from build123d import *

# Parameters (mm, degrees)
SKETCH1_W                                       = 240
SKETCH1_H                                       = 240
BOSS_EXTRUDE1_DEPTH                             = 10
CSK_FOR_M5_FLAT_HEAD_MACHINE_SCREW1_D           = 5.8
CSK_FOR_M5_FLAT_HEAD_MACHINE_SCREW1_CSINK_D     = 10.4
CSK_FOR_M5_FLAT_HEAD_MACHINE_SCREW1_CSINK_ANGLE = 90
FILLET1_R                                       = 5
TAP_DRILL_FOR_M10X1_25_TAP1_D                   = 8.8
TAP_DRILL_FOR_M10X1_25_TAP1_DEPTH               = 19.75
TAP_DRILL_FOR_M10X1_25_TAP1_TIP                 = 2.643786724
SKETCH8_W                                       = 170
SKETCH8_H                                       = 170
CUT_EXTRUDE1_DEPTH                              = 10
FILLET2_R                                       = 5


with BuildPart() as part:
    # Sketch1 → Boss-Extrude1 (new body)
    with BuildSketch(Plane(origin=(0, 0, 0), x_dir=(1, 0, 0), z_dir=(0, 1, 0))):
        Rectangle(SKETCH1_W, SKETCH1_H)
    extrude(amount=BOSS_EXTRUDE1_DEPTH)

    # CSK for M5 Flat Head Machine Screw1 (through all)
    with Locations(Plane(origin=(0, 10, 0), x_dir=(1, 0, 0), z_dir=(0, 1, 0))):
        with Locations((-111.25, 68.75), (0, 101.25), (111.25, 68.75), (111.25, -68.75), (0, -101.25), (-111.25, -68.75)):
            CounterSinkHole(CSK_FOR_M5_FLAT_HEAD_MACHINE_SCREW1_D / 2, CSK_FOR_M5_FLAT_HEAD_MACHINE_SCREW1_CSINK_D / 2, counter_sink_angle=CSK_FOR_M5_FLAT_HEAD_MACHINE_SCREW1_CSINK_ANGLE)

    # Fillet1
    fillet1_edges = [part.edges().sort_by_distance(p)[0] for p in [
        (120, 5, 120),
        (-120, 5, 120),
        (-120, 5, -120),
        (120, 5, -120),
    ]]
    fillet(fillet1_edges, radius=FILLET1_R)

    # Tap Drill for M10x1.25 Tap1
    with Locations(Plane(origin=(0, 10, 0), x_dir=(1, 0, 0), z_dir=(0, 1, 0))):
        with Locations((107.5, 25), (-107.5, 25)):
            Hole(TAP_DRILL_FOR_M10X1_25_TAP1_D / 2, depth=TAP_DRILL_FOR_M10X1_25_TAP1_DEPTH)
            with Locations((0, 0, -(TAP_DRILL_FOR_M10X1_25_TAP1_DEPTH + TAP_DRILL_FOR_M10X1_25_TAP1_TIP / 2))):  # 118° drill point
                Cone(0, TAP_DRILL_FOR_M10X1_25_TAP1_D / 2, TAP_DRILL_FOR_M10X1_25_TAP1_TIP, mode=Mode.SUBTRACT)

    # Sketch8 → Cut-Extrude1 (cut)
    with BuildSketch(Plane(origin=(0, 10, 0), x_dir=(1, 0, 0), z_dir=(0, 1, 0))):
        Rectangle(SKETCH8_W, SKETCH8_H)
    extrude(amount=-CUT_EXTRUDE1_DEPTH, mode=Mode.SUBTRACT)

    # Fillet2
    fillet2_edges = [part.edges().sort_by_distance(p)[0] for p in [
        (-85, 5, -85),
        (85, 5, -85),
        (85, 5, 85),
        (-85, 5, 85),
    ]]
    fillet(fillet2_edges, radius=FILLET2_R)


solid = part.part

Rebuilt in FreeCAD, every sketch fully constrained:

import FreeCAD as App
import Part
import Sketcher
from FreeCAD import Vector
Q = App.Units.Quantity


def edges_at(feature, points):
    """Names of the edges that pass closest to the given points."""
    edges = feature.Shape.Edges
    near = lambda p: min(range(len(edges)), key=lambda i: edges[i].distToShape(Part.Vertex(*p))[0])
    return sorted({f"Edge{near(p) + 1}" for p in points})

doc = App.newDocument("Part")
body = doc.addObject("PartDesign::Body", "Body")

# Sketch on XZ plane
sketch1 = doc.addObject("Sketcher::SketchObject", "Sketch")
body.addObject(sketch1)
sketch1.AttachmentSupport = (doc.XZ_Plane, [""])
sketch1.MapMode = "FlatFace"
sketch1.addGeometry([
    Part.LineSegment(Vector(-120, -120, 0), Vector(-120, 120, 0)),
    Part.LineSegment(Vector(-120, 120, 0), Vector(120, 120, 0)),
    Part.LineSegment(Vector(120, 120, 0), Vector(120, -120, 0)),
    Part.LineSegment(Vector(120, -120, 0), Vector(-120, -120, 0)),
], False)
sketch1.addConstraint([
    Sketcher.Constraint("Coincident", 0, 2, 1, 1),
    Sketcher.Constraint("Coincident", 1, 2, 2, 1),
    Sketcher.Constraint("Coincident", 2, 2, 3, 1),
    Sketcher.Constraint("Coincident", 3, 2, 0, 1),
    Sketcher.Constraint("Vertical", 0),
    Sketcher.Constraint("Horizontal", 1),
    Sketcher.Constraint("Vertical", 2),
    Sketcher.Constraint("Horizontal", 3),
    Sketcher.Constraint("Symmetric", 0, 2, 2, 2, -1, 1),
    Sketcher.Constraint("Equal", 3, 0),
    Sketcher.Constraint("DistanceX", 1, 1, 1, 2, Q("240 mm")),
])
pad1 = doc.addObject("PartDesign::Pad", "Pad")
body.addObject(pad1)
pad1.Profile = sketch1
pad1.Length = 10
pad1.Reversed = True

# Sketch on XZ plane
sketch2 = doc.addObject("Sketcher::SketchObject", "Sketch001")
body.addObject(sketch2)
sketch2.AttachmentSupport = (doc.XZ_Plane, [""])
sketch2.MapMode = "FlatFace"
sketch2.AttachmentOffset = App.Placement(Vector(0, 0, -10), App.Rotation())
sketch2.addGeometry([
    Part.Circle(Vector(-111.2, -68.8, 0), Vector(0, 0, 1), 2.9),  # 0
    Part.Circle(Vector(0, -101.2, 0), Vector(0, 0, 1), 2.9),  # 1
    Part.Circle(Vector(111.2, -68.8, 0), Vector(0, 0, 1), 2.9),  # 2
    Part.Circle(Vector(111.2, 68.8, 0), Vector(0, 0, 1), 2.9),  # 3
    Part.Circle(Vector(0, 101.2, 0), Vector(0, 0, 1), 2.9),  # 4
    Part.Circle(Vector(-111.2, 68.8, 0), Vector(0, 0, 1), 2.9),  # 5
], False)
sketch2.addConstraint([
    Sketcher.Constraint("Equal", 0, 1),
    Sketcher.Constraint("Equal", 1, 2),
    Sketcher.Constraint("Equal", 2, 3),
    Sketcher.Constraint("Equal", 3, 4),
    Sketcher.Constraint("Equal", 4, 5),
    Sketcher.Constraint("Symmetric", 0, 3, 3, 3, -1, 1),
    Sketcher.Constraint("Symmetric", 1, 3, 4, 3, -1, 1),
    Sketcher.Constraint("Symmetric", 2, 3, 5, 3, -1, 1),
    Sketcher.Constraint("Symmetric", 0, 3, 2, 3, -2),
    Sketcher.Constraint("PointOnObject", 1, 3, -2),
    Sketcher.Constraint("Diameter", 0, Q("5.8 mm")),
    Sketcher.Constraint("DistanceY", 1, 3, 3, 3, Q("170 mm")),
    Sketcher.Constraint("DistanceY", 1, 3, 0, 3, Q("32.5 mm")),
    Sketcher.Constraint("DistanceX", 0, 3, 2, 3, Q("222.5 mm")),
])
doc.recompute()
hole = doc.addObject("PartDesign::Hole", "Hole")
body.addObject(hole)
hole.Profile = sketch2
hole.ThreadType = "None"
hole.Diameter = 5.8
hole.DepthType = "ThroughAll"
hole.HoleCutType = "Countersink"
hole.HoleCutDiameter = 10.4
hole.HoleCutCountersinkAngle = 90
hole.Reversed = True
doc.recompute()

fillet = doc.addObject("PartDesign::Fillet", "Fillet")
body.addObject(fillet)
fillet.Base = (hole, edges_at(hole, [
    (120, 5, 120),
    (-120, 5, 120),
    (-120, 5, -120),
    (120, 5, -120),
]))
fillet.Radius = 5

# Sketch on XZ plane
sketch3 = doc.addObject("Sketcher::SketchObject", "Sketch002")
body.addObject(sketch3)
sketch3.AttachmentSupport = (doc.XZ_Plane, [""])
sketch3.MapMode = "FlatFace"
sketch3.AttachmentOffset = App.Placement(Vector(0, 0, -10), App.Rotation())
sketch3.addGeometry([
    Part.Circle(Vector(107.5, -25, 0), Vector(0, 0, 1), 4.4),
    Part.Circle(Vector(-107.5, -25, 0), Vector(0, 0, 1), 4.4),
], False)
sketch3.addConstraint([
    Sketcher.Constraint("Equal", 0, 1),
    Sketcher.Constraint("Symmetric", 0, 3, 1, 3, -2),
    Sketcher.Constraint("Diameter", 0, Q("8.8 mm")),
    Sketcher.Constraint("DistanceY", 0, 3, -1, 1, Q("25 mm")),
    Sketcher.Constraint("DistanceX", 1, 3, 0, 3, Q("215 mm")),
])
doc.recompute()
hole2 = doc.addObject("PartDesign::Hole", "Hole001")
body.addObject(hole2)
hole2.Profile = sketch3
hole2.ThreadType = "None"
hole2.Diameter = 8.8
hole2.DepthType = "Dimension"
hole2.Depth = 19.75
hole2.DrillPoint = "Angled"
hole2.DrillPointAngle = 118
hole2.Reversed = True

# Sketch on XZ plane
sketch4 = doc.addObject("Sketcher::SketchObject", "Sketch003")
body.addObject(sketch4)
sketch4.AttachmentSupport = (doc.XZ_Plane, [""])
sketch4.MapMode = "FlatFace"
sketch4.AttachmentOffset = App.Placement(Vector(0, 0, -10), App.Rotation())
sketch4.addGeometry([
    Part.LineSegment(Vector(-85, -85, 0), Vector(-85, 85, 0)),
    Part.LineSegment(Vector(-85, 85, 0), Vector(85, 85, 0)),
    Part.LineSegment(Vector(85, 85, 0), Vector(85, -85, 0)),
    Part.LineSegment(Vector(85, -85, 0), Vector(-85, -85, 0)),
], False)
sketch4.addConstraint([
    Sketcher.Constraint("Coincident", 0, 2, 1, 1),
    Sketcher.Constraint("Coincident", 1, 2, 2, 1),
    Sketcher.Constraint("Coincident", 2, 2, 3, 1),
    Sketcher.Constraint("Coincident", 3, 2, 0, 1),
    Sketcher.Constraint("Vertical", 0),
    Sketcher.Constraint("Horizontal", 1),
    Sketcher.Constraint("Vertical", 2),
    Sketcher.Constraint("Horizontal", 3),
    Sketcher.Constraint("Symmetric", 0, 2, 2, 2, -1, 1),
    Sketcher.Constraint("Equal", 3, 0),
    Sketcher.Constraint("DistanceX", 1, 1, 1, 2, Q("170 mm")),
])
pocket1 = doc.addObject("PartDesign::Pocket", "Pocket")
body.addObject(pocket1)
pocket1.Profile = sketch4
pocket1.Length = 10
pocket1.Reversed = True
doc.recompute()

fillet2 = doc.addObject("PartDesign::Fillet", "Fillet001")
body.addObject(fillet2)
fillet2.Base = (pocket1, edges_at(pocket1, [
    (-85, 5, -85),
    (85, 5, -85),
    (85, 5, 85),
    (-85, 5, 85),
]))
fillet2.Radius = 5

doc.recompute()
